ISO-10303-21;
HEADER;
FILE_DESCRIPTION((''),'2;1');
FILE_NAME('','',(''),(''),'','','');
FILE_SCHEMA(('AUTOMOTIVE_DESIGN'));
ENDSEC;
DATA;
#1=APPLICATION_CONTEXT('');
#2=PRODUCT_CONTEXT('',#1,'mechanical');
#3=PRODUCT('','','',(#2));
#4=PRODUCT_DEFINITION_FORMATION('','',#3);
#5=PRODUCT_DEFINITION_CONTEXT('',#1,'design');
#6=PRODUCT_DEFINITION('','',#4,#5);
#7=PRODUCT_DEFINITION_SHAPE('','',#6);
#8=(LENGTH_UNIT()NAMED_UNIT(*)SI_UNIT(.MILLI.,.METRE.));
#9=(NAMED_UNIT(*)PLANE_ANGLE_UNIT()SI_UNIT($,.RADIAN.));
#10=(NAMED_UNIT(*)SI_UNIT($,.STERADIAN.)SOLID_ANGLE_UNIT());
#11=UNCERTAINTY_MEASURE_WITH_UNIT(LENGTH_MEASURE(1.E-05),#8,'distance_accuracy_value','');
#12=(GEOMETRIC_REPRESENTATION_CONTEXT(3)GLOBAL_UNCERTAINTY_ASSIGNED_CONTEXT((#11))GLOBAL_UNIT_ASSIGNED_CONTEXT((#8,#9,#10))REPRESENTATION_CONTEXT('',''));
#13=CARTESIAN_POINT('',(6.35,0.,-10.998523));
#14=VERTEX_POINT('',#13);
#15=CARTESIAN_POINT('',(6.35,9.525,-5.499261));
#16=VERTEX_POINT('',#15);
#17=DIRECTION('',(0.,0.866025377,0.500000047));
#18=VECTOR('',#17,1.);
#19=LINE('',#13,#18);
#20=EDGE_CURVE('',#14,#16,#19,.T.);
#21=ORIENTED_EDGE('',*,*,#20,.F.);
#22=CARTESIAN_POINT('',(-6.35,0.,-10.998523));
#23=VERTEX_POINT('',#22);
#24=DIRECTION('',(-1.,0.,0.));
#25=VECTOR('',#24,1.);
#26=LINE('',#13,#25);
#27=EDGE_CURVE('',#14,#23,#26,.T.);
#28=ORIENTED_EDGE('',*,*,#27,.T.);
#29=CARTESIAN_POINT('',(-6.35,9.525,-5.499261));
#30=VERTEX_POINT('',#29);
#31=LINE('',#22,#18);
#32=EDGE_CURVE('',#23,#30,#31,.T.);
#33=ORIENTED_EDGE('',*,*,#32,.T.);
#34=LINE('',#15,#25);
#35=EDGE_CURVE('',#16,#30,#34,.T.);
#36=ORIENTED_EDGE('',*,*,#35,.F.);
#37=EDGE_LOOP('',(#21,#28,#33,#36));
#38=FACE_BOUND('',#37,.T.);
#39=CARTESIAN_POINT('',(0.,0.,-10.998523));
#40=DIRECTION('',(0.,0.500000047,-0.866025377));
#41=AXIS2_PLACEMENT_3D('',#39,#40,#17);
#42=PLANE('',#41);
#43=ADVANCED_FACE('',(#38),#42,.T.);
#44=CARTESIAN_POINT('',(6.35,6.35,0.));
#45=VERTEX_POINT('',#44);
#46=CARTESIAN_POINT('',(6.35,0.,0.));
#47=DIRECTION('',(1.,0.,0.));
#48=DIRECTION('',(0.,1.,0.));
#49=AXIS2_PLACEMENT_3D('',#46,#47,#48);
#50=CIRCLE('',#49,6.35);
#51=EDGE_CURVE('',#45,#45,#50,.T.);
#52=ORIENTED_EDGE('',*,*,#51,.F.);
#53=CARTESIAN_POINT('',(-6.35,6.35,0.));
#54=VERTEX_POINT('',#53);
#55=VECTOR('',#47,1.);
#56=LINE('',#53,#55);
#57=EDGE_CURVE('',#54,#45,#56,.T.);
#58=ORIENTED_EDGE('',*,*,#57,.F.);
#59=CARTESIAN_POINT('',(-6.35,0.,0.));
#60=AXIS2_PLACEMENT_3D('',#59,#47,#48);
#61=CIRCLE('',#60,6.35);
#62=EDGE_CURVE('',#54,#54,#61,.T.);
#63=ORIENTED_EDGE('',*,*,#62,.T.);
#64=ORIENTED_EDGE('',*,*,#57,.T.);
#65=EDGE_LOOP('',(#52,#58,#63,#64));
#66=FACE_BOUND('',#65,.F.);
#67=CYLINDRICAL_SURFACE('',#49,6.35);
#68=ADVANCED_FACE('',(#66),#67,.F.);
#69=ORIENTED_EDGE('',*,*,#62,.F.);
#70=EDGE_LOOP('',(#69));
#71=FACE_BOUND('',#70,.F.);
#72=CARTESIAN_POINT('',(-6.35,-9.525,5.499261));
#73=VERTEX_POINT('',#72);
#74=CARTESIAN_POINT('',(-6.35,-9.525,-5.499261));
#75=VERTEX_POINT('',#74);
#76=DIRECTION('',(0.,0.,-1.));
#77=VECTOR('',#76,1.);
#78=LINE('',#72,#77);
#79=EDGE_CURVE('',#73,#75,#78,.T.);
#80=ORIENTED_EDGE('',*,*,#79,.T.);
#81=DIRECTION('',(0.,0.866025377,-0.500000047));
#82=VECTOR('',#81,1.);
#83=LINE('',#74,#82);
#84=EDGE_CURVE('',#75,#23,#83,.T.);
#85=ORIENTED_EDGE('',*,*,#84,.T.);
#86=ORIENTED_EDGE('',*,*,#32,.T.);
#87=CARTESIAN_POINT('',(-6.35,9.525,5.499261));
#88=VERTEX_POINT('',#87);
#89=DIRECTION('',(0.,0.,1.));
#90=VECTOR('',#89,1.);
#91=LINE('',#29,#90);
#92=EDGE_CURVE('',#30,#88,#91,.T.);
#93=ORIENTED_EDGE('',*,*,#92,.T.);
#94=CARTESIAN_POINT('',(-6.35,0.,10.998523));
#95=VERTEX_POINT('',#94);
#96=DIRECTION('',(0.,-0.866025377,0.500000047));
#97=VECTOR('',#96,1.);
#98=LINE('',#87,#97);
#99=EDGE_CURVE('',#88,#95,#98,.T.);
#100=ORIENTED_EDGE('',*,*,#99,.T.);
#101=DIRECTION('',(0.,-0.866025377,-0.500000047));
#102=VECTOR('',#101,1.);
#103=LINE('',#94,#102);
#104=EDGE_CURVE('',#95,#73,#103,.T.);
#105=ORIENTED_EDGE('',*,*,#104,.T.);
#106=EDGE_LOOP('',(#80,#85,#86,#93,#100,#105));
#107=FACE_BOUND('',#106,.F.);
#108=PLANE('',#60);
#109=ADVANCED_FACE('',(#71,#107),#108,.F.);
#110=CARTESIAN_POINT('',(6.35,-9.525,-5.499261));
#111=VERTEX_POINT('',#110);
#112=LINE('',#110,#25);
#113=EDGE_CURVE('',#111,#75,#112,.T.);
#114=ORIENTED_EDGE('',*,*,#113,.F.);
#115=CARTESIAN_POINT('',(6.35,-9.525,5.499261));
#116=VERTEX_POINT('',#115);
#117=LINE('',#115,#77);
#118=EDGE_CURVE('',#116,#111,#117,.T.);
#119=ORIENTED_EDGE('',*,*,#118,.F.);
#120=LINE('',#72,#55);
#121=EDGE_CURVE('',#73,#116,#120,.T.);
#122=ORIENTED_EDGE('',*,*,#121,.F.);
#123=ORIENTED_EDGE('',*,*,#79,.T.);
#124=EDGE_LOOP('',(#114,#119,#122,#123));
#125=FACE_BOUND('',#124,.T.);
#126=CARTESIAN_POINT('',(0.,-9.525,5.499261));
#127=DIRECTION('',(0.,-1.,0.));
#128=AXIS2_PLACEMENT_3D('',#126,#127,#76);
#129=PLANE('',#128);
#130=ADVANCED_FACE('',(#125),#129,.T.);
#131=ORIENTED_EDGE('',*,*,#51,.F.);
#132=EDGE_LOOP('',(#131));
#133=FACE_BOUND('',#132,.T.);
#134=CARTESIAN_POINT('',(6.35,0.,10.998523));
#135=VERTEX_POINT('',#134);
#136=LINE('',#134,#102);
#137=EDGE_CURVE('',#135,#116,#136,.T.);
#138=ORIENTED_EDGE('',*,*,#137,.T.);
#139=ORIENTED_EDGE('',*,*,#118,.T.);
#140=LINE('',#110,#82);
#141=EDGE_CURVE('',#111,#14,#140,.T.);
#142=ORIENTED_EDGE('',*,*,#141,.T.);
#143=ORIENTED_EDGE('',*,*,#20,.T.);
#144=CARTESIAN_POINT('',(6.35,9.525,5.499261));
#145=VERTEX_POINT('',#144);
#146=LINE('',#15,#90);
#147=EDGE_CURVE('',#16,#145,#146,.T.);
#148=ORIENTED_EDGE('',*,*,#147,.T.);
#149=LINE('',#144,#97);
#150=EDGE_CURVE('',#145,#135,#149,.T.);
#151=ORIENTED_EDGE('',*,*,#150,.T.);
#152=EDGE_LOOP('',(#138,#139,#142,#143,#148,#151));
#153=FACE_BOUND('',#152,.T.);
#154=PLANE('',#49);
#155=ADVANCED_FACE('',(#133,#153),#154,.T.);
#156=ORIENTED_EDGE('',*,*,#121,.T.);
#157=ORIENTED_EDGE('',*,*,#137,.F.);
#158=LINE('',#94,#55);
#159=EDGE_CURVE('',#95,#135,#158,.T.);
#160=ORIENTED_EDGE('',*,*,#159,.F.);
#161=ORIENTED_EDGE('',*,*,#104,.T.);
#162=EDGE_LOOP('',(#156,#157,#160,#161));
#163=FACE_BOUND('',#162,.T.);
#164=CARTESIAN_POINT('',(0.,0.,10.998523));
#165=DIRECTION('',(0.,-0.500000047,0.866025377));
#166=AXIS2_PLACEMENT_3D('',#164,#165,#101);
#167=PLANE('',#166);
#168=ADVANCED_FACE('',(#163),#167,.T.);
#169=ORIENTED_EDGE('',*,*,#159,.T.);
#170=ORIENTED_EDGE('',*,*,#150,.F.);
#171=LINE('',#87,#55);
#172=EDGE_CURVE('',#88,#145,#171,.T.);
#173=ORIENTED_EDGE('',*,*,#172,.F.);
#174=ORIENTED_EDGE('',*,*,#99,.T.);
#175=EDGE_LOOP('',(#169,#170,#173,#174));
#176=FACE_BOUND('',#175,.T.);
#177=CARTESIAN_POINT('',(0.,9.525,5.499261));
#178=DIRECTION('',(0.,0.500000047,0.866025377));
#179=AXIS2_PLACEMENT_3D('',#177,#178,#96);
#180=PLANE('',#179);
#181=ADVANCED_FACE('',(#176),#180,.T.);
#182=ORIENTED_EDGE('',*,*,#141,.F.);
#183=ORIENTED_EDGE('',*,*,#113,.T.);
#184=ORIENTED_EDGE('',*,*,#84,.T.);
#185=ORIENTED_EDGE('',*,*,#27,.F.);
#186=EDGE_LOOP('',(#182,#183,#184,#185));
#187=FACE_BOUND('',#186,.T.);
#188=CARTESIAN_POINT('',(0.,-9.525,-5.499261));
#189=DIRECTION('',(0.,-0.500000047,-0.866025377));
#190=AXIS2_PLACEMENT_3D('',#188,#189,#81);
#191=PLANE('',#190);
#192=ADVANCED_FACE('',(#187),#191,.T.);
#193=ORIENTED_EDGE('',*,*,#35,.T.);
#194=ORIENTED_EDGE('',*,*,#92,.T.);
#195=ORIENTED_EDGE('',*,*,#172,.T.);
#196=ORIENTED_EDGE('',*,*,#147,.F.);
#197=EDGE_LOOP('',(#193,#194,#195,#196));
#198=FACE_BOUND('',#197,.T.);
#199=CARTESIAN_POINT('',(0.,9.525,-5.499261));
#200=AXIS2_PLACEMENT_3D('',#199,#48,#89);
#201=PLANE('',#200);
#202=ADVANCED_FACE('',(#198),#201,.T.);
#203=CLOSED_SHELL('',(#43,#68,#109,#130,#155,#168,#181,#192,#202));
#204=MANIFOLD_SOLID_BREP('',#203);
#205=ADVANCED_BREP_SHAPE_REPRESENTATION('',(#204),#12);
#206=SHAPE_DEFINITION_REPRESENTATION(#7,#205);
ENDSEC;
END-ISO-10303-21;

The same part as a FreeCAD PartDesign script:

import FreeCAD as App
import Part
import Sketcher

V = App.Vector
Q = App.Units.Quantity


def add_polygon(sketch, points):
    """Adds a closed chain of lines whose ends are joined by coincident constraints."""
    first, n = sketch.GeometryCount, len(points)
    for a, b in zip(points, points[1:] + points[:1]):
        sketch.addGeometry(Part.LineSegment(App.Vector(*a, 0), App.Vector(*b, 0)), False)
    for i in range(n):
        sketch.addConstraint(Sketcher.Constraint("Coincident", first + i, 2, first + (i + 1) % n, 1))

doc = App.newDocument("Part")
body = doc.addObject("PartDesign::Body", "Body")

# Sketch on YZ plane
sketch1 = doc.addObject("Sketcher::SketchObject", "Sketch")
body.addObject(sketch1)
sketch1.AttachmentSupport = (doc.YZ_Plane, [""])
sketch1.MapMode = "FlatFace"
add_polygon(sketch1, [(9.525, -5.499261), (9.525, 5.499261), (0, 10.998523), (-9.525, 5.499261), (-9.525, -5.499261), (0, -10.998523)])  # lines 0-5
sketch1.addConstraint([
    Sketcher.Constraint("Vertical", 0),
    Sketcher.Constraint("Vertical", 3),
    Sketcher.Constraint("Symmetric", 0, 2, 3, 2, -1, 1),
    Sketcher.Constraint("Symmetric", 1, 2, 4, 2, -1, 1),
    Sketcher.Constraint("PointOnObject", 1, 2, -2),
    Sketcher.Constraint("Parallel", 2, 5),
    Sketcher.Constraint("Horizontal", 0, 2, 2, 2),
    Sketcher.Constraint("Angle", 1, Q("149.999997 deg")),
    Sketcher.Constraint("DistanceX", 2, 2, 0, 2, Q("0.75 in")),
    Sketcher.Constraint("DistanceY", 0, 1, 0, 2, 10.998522),
])
pad1 = doc.addObject("PartDesign::Pad", "Pad")
body.addObject(pad1)
pad1.Profile = sketch1
pad1.Length = Q("0.5 in")
pad1.Midplane = True

# Sketch on YZ plane
sketch2 = doc.addObject("Sketcher::SketchObject", "Sketch001")
body.addObject(sketch2)
sketch2.AttachmentSupport = (doc.YZ_Plane, [""])
sketch2.MapMode = "FlatFace"
sketch2.AttachmentOffset = App.Placement(V(0, 0, 0.25 * 25.4), App.Rotation())
sketch2.addGeometry(Part.Circle(V(0, 0, 0), V(0, 0, 1), 6.35), False)
sketch2.addConstraint([
    Sketcher.Constraint("Coincident", 0, 3, -1, 1),
    Sketcher.Constraint("Diameter", 0, Q("0.5 in")),
])
pocket1 = doc.addObject("PartDesign::Pocket", "Pocket")
body.addObject(pocket1)
pocket1.Profile = sketch2
pocket1.Length = Q("1 in")
pocket1.Midplane = True

doc.recompute()
